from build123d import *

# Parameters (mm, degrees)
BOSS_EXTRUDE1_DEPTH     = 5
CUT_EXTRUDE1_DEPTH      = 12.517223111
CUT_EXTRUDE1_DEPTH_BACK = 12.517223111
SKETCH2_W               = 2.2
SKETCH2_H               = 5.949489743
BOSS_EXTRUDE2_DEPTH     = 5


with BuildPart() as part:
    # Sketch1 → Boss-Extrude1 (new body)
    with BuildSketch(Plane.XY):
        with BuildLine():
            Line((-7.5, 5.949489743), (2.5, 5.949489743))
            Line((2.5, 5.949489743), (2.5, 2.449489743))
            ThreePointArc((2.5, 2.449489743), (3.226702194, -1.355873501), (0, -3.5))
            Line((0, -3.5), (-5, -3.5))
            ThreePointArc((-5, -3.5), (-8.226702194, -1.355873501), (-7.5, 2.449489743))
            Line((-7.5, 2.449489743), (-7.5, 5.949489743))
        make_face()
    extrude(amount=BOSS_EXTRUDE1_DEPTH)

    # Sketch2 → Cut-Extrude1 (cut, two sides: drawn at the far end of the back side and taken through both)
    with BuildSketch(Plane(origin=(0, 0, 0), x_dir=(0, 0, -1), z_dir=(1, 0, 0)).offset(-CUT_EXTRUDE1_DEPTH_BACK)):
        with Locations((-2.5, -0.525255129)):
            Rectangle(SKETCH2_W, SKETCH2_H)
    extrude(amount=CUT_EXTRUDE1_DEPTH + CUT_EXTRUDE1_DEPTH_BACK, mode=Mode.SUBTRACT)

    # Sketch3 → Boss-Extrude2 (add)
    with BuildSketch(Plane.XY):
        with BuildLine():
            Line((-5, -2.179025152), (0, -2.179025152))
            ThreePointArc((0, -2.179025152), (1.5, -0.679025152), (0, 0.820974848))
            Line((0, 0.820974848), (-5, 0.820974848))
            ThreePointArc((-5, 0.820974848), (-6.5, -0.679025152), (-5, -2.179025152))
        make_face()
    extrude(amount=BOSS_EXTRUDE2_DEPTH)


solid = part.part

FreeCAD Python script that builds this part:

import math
import FreeCAD as App
import Part
import Sketcher

V = App.Vector


def add_polygon(sketch, points):
    """Adds a closed chain of lines whose ends are joined by coincident constraints."""
    first, n = sketch.GeometryCount, len(points)
    for a, b in zip(points, points[1:] + points[:1]):
        sketch.addGeometry(Part.LineSegment(App.Vector(*a, 0), App.Vector(*b, 0)), False)
    for i in range(n):
        sketch.addConstraint(Sketcher.Constraint("Coincident", first + i, 2, first + (i + 1) % n, 1))

doc = App.newDocument("Part")
body = doc.addObject("PartDesign::Body", "Body")

sketch1 = body.newObject("Sketcher::SketchObject", "Sketch")
sketch1.AttachmentSupport = (doc.getObject("XY_Plane"), [""])
sketch1.MapMode = "FlatFace"
sketch1.addGeometry(Part.LineSegment(V(2.5, 5.94949, 0), V(-7.5, 5.94949, 0)), False)
sketch1.addGeometry(Part.LineSegment(V(-7.5, 5.94949, 0), V(-7.5, 2.44949, 0)), False)
sketch1.addGeometry(Part.ArcOfCircle(Part.Circle(V(-5, 0, 0), V(0, 0, 1), 3.5), math.radians(135.584691), math.radians(270)), False)
sketch1.addGeometry(Part.LineSegment(V(-5, -3.5, 0), V(0, -3.5, 0)), False)
sketch1.addGeometry(Part.ArcOfCircle(Part.Circle(V(0, 0, 0), V(0, 0, 1), 3.5), math.radians(-90), math.radians(44.415309)), False)
sketch1.addGeometry(Part.LineSegment(V(2.5, 2.44949, 0), V(2.5, 5.94949, 0)), False)
sketch1.addConstraint(Sketcher.Constraint("Coincident", 0, 2, 1, 1))
sketch1.addConstraint(Sketcher.Constraint("Coincident", 1, 2, 2, 1))
sketch1.addConstraint(Sketcher.Constraint("Tangent", 2, 2, 3, 1))
sketch1.addConstraint(Sketcher.Constraint("Tangent", 3, 2, 4, 1))
sketch1.addConstraint(Sketcher.Constraint("Coincident", 4, 2, 5, 1))
sketch1.addConstraint(Sketcher.Constraint("Coincident", 5, 2, 0, 1))
sketch1.addConstraint(Sketcher.Constraint("Horizontal", 0))
sketch1.addConstraint(Sketcher.Constraint("Vertical", 1))
sketch1.addConstraint(Sketcher.Constraint("Horizontal", 3))
sketch1.addConstraint(Sketcher.Constraint("Vertical", 5))
sketch1.addConstraint(Sketcher.Constraint("Coincident", 4, 3, -1, 1))
sketch1.addConstraint(Sketcher.Constraint("Equal", 2, 4))
sketch1.addConstraint(Sketcher.Constraint("Horizontal", 1, 2, 4, 2))
sketch1.addConstraint(Sketcher.Constraint("Radius", 2, 3.5))
sketch1.addConstraint(Sketcher.Constraint("DistanceX", 0, 2, 0, 1, 10.0))
sketch1.addConstraint(Sketcher.Constraint("DistanceX", 3, 1, 3, 2, 5.0))
sketch1.addConstraint(Sketcher.Constraint("DistanceY", 1, 2, 1, 1, 3.5))
pad1 = body.newObject("PartDesign::Pad", "Pad")
pad1.Profile = sketch1
pad1.Length = 5

sketch2 = body.newObject("Sketcher::SketchObject", "Sketch001")
sketch2.AttachmentSupport = (doc.getObject("YZ_Plane"), [""])
sketch2.MapMode = "FlatFace"
add_polygon(sketch2, [(2.44949, 3.6), (-3.5, 3.6), (-3.5, 1.4), (2.44949, 1.4)])
sketch2.addConstraint(Sketcher.Constraint("Horizontal", 0))
sketch2.addConstraint(Sketcher.Constraint("Vertical", 1))
sketch2.addConstraint(Sketcher.Constraint("Horizontal", 2))
sketch2.addConstraint(Sketcher.Constraint("Vertical", 3))
sketch2.addConstraint(Sketcher.Constraint("DistanceY", 1, 2, 1, 1, 2.2))
sketch2.addConstraint(Sketcher.Constraint("DistanceX", 0, 2, -1, 1, 3.5))
sketch2.addConstraint(Sketcher.Constraint("DistanceY", -1, 1, 0, 2, 3.6))
sketch2.addConstraint(Sketcher.Constraint("DistanceX", 0, 2, 0, 1, 5.94949))
pocket1 = body.newObject("PartDesign::Pocket", "Pocket")
pocket1.Profile = sketch2
pocket1.Type = "ThroughAll"
pocket1.Midplane = True

sketch3 = body.newObject("Sketcher::SketchObject", "Sketch002")
sketch3.AttachmentSupport = (doc.getObject("XY_Plane"), [""])
sketch3.MapMode = "FlatFace"
sketch3.addGeometry(Part.LineSegment(V(-5, -2.179025, 0), V(0, -2.179025, 0)), False)
sketch3.addGeometry(Part.ArcOfCircle(Part.Circle(V(0, -0.679025, 0), V(0, 0, 1), 1.5), math.radians(-90), math.radians(90)), False)
sketch3.addGeometry(Part.LineSegment(V(0, 0.820975, 0), V(-5, 0.820975, 0)), False)
sketch3.addGeometry(Part.ArcOfCircle(Part.Circle(V(-5, -0.679025, 0), V(0, 0, 1), 1.5), math.radians(90), math.radians(270)), False)
sketch3.addConstraint(Sketcher.Constraint("Tangent", 0, 2, 1, 1))
sketch3.addConstraint(Sketcher.Constraint("Tangent", 1, 2, 2, 1))
sketch3.addConstraint(Sketcher.Constraint("Tangent", 2, 2, 3, 1))
sketch3.addConstraint(Sketcher.Constraint("Tangent", 3, 2, 0, 1))
sketch3.addConstraint(Sketcher.Constraint("Horizontal", 0))
sketch3.addConstraint(Sketcher.Constraint("Horizontal", 2))
sketch3.addConstraint(Sketcher.Constraint("PointOnObject", 1, 3, -2))
sketch3.addConstraint(Sketcher.Constraint("Radius", 1, 1.5))
sketch3.addConstraint(Sketcher.Constraint("DistanceX", 0, 1, 0, 2, 5.0))
sketch3.addConstraint(Sketcher.Constraint("DistanceY", 1, 3, -1, 1, 0.679025))
pad2 = body.newObject("PartDesign::Pad", "Pad001")
pad2.Profile = sketch3
pad2.Length = 5

doc.recompute()
